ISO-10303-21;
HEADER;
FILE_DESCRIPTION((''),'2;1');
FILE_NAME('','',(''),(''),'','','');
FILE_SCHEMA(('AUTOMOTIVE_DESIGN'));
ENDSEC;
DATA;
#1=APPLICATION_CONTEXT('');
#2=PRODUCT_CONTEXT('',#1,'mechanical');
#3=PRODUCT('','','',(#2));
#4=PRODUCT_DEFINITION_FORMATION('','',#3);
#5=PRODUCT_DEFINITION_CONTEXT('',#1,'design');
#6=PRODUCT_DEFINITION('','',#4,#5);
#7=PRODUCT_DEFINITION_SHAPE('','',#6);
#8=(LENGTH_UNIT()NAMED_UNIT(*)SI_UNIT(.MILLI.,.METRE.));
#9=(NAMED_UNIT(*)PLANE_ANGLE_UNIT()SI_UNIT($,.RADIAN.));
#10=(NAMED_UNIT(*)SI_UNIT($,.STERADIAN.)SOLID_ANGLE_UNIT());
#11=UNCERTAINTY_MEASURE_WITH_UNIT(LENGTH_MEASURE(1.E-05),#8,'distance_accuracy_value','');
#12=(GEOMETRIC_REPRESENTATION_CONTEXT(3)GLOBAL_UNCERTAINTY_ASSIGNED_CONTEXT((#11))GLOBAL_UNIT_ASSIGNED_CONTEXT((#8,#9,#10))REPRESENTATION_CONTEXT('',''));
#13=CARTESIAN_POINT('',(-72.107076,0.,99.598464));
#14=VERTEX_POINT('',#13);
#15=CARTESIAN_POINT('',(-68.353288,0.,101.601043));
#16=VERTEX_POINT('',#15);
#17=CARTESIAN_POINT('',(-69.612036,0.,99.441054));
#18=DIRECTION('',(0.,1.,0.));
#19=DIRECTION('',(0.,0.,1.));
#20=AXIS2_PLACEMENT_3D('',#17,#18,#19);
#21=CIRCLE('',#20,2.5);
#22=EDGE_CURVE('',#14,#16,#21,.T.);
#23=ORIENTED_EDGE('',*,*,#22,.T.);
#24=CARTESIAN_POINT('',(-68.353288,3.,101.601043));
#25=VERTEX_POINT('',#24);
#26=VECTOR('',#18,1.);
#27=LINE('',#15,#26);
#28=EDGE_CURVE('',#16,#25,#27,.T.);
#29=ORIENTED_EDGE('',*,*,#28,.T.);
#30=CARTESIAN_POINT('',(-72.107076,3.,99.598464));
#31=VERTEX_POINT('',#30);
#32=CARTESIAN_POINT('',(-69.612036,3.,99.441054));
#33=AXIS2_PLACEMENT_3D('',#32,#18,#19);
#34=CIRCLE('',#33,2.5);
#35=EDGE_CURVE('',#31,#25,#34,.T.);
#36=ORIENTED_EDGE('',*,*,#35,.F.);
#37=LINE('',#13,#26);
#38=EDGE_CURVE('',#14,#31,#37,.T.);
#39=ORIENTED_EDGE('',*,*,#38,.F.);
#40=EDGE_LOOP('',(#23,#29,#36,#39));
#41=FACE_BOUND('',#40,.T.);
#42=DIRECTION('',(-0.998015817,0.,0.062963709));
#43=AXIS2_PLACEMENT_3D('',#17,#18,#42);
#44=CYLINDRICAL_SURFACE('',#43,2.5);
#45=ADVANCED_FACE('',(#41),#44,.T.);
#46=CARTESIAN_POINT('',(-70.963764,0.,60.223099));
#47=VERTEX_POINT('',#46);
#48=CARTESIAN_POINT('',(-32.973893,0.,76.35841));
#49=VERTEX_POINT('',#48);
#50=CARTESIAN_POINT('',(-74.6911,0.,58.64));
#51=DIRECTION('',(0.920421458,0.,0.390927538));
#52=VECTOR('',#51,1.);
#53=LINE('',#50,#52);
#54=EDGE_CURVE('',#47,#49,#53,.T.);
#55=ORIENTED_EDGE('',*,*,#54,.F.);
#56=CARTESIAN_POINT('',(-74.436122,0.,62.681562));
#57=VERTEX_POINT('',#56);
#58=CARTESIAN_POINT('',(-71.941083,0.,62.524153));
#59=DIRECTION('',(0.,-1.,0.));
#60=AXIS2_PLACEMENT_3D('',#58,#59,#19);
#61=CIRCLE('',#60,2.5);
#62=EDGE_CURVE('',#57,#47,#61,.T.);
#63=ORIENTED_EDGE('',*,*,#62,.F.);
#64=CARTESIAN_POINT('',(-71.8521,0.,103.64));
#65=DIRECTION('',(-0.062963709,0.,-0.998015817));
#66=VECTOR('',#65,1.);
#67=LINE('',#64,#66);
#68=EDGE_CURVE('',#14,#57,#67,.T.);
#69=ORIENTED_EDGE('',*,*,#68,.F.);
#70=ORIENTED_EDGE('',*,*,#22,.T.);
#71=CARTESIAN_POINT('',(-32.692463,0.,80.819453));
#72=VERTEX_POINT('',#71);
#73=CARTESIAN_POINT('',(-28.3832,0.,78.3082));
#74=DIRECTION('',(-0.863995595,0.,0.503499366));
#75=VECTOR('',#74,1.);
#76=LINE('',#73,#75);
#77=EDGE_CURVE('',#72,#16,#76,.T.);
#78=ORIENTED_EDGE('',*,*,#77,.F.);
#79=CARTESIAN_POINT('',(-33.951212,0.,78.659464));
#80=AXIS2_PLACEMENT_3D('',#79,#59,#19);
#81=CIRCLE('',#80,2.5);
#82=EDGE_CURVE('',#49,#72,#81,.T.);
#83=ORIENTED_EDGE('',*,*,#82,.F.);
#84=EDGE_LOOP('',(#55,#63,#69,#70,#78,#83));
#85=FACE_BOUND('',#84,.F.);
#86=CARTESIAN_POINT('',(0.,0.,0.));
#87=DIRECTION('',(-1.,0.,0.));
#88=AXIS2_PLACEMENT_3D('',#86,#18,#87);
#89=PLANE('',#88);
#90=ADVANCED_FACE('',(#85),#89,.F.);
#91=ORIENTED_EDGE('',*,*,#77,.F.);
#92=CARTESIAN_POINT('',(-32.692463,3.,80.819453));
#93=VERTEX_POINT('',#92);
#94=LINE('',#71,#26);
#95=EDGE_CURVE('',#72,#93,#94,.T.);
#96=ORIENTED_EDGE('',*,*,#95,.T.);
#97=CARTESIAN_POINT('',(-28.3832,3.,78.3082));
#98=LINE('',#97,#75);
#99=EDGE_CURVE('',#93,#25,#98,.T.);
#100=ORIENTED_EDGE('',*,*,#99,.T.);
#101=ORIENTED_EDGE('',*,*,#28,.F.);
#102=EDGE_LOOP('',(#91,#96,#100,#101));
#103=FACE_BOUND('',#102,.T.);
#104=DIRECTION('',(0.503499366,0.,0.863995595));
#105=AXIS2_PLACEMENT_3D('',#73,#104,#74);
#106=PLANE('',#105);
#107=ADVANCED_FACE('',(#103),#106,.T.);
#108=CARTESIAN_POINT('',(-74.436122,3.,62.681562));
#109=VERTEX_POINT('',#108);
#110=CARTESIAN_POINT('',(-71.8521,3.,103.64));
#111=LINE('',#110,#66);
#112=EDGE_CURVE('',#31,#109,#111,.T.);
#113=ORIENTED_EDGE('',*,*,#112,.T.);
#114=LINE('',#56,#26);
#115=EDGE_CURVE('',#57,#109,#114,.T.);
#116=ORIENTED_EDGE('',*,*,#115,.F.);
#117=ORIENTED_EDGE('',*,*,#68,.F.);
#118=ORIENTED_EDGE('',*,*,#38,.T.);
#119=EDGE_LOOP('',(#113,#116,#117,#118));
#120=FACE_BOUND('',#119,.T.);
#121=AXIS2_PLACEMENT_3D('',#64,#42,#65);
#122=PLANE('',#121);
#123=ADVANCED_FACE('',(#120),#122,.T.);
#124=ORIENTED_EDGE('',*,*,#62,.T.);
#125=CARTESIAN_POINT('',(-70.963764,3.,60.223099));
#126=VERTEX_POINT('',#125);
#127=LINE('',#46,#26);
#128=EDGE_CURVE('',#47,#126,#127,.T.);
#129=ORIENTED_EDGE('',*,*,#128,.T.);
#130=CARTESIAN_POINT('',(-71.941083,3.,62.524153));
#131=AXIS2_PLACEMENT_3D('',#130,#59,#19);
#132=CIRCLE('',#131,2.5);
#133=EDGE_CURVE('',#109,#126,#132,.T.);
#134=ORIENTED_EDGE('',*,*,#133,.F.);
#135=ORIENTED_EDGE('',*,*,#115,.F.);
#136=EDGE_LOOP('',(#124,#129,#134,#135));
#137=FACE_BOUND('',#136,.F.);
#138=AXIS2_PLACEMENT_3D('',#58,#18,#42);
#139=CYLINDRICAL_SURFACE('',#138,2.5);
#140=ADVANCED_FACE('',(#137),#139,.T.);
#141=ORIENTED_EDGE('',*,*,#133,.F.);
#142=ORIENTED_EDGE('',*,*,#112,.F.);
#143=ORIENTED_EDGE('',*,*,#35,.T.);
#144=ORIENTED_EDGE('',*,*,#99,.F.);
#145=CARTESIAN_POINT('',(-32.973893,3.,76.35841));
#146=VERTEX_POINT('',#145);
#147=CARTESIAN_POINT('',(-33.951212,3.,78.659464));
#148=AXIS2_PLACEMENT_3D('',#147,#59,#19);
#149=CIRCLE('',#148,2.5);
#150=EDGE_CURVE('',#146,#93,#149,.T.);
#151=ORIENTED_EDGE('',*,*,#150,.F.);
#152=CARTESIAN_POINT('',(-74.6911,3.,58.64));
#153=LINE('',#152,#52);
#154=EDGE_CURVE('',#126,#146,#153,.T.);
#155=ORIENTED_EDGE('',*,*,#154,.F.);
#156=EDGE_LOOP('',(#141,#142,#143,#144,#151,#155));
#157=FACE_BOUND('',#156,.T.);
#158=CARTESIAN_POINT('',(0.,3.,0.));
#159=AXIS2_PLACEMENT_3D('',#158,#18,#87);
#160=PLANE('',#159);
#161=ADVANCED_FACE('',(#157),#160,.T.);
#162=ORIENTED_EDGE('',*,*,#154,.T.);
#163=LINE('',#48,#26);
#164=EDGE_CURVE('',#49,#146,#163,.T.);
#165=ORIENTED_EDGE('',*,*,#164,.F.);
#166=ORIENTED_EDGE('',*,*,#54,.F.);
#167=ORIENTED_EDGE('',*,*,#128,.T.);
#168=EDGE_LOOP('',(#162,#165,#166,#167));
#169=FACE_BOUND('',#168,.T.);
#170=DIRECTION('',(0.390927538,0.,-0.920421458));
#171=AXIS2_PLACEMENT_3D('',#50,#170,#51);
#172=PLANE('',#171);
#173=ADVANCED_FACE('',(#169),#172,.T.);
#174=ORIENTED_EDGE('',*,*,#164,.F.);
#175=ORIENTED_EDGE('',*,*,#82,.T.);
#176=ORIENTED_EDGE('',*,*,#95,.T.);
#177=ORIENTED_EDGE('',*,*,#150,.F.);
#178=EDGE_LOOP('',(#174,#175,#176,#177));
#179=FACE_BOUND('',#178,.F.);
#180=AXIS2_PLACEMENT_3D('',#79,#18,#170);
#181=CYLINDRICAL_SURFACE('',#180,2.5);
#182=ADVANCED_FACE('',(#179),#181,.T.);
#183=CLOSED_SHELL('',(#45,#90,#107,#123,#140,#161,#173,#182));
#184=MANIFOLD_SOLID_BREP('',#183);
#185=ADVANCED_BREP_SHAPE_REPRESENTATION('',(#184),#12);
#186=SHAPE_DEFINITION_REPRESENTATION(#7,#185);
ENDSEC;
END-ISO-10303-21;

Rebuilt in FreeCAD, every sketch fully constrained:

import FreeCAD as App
import Part
import Sketcher
from FreeCAD import Vector
Q = App.Units.Quantity


def edges_at(feature, points):
    """Names of the edges that pass closest to the given points."""
    edges = feature.Shape.Edges
    near = lambda p: min(range(len(edges)), key=lambda i: edges[i].distToShape(Part.Vertex(*p))[0])
    return sorted({f"Edge{near(p) + 1}" for p in points})


def add_polygon(sketch, points):
    """Adds a closed chain of lines whose ends are joined by coincident constraints."""
    first, n = sketch.GeometryCount, len(points)
    for a, b in zip(points, points[1:] + points[:1]):
        sketch.addGeometry(Part.LineSegment(App.Vector(*a, 0), App.Vector(*b, 0)), False)
    for i in range(n):
        sketch.addConstraint(Sketcher.Constraint("Coincident", first + i, 2, first + (i + 1) % n, 1))

doc = App.newDocument("Part")
params = doc.addObject("Spreadsheet::Sheet", "Params")
for row, (alias, value) in enumerate([
    ("pad1_length", "3 mm"),
    ("fillet_radius", "2.5 mm"),
], start=1):
    params.set(f"A{row}", alias)
    params.set(f"B{row}", "=" + value)
    params.setAlias(f"B{row}", alias)

body = doc.addObject("PartDesign::Body", "Body")

# Sketch on XZ plane
sketch1 = body.newObject("Sketcher::SketchObject", "Sketch")
sketch1.AttachmentSupport = (doc.getObject("XZ_Plane"), [""])
sketch1.MapMode = "FlatFace"
add_polygon(sketch1, [(-74.6911, 58.64), (-71.8521, 103.64), (-28.3832, 78.3082)])  # lines 0-2
sketch1.addConstraint(Sketcher.Constraint("Equal", 1, 2))
sketch1.addConstraint(Sketcher.Constraint("DistanceY", 2, 2, 0, 2, 45.0))
sketch1.addConstraint(Sketcher.Constraint("Distance", 1, 50.3115))
sketch1.addConstraint(Sketcher.Constraint("Angle", 0, Q("86.39 deg")))
sketch1.addConstraint(Sketcher.Constraint("DistanceY", -1, 1, 0, 2, 103.64))
sketch1.addConstraint(Sketcher.Constraint("DistanceX", 0, 2, -1, 1, 71.852))
pad1 = body.newObject("PartDesign::Pad", "Pad")
pad1.Profile = sketch1
pad1.setExpression("Length", "Params.pad1_length")
pad1.Reversed = True
doc.recompute()

fillet = body.newObject("PartDesign::Fillet", "Fillet")
fillet.Base = (pad1, edges_at(pad1, [(-71.852, 1.5, 103.64), (-74.691, 1.5, 58.64), (-28.383, 1.5, 78.308)]))
fillet.setExpression("Radius", "Params.fillet_radius")

doc.recompute()
